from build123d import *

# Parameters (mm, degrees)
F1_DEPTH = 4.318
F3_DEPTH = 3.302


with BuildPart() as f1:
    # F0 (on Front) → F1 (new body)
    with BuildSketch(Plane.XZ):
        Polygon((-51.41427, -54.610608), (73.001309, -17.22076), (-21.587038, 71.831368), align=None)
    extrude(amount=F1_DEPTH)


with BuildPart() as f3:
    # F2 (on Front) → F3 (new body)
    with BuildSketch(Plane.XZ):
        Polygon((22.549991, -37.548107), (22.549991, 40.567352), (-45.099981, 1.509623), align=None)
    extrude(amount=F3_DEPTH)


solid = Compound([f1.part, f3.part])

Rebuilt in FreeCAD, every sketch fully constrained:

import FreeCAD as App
import Part
import Sketcher
Q = App.Units.Quantity

doc = App.newDocument("Part")
body = doc.addObject("PartDesign::Body", "Body")

sketch1 = body.newObject("Sketcher::SketchObject", "Sketch")
sketch1.AttachmentSupport = (doc.getObject("XZ_Plane"), [""])
sketch1.MapMode = "FlatFace"
sketch1.addGeometry([
    Part.LineSegment(App.Vector(-51, -55, 0), App.Vector(73, -17, 0)),
    Part.LineSegment(App.Vector(73, -17, 0), App.Vector(-22, 72, 0)),
    Part.LineSegment(App.Vector(-22, 72, 0), App.Vector(-51, -55, 0)),
], False)
sketch1.addConstraint([
    Sketcher.Constraint("Coincident", 0, 2, 1, 1),
    Sketcher.Constraint("Coincident", 1, 2, 2, 1),
    Sketcher.Constraint("Coincident", 2, 2, 0, 1),
    Sketcher.Constraint("Equal", 0, 1),
    Sketcher.Constraint("Equal", 1, 2),
    Sketcher.Constraint("Distance", 0, 129.912421),
    Sketcher.Constraint("DistanceX", -1, 1, 0, 2, 73.001309),
    Sketcher.Constraint("DistanceY", 0, 2, -1, 1, 17.22076),
    Sketcher.Constraint("DistanceX", 1, 2, -1, 1, 21.587038),
])
pad1 = body.newObject("PartDesign::Pad", "Pad")
pad1.Profile = sketch1
pad1.Length = Q("0.17 in")
body2 = doc.addObject("PartDesign::Body", "Body001")

sketch2 = body2.newObject("Sketcher::SketchObject", "Sketch001")
sketch2.AttachmentSupport = (doc.getObject("XZ_Plane001"), [""])
sketch2.MapMode = "FlatFace"
sketch2.addGeometry([
    Part.LineSegment(App.Vector(23, -38, 0), App.Vector(23, 41, 0)),
    Part.LineSegment(App.Vector(23, 41, 0), App.Vector(-45, 2, 0)),
    Part.LineSegment(App.Vector(-45, 2, 0), App.Vector(23, -38, 0)),
], False)
sketch2.addConstraint([
    Sketcher.Constraint("Coincident", 0, 2, 1, 1),
    Sketcher.Constraint("Coincident", 1, 2, 2, 1),
    Sketcher.Constraint("Coincident", 2, 2, 0, 1),
    Sketcher.Constraint("Vertical", 0),
    Sketcher.Constraint("Equal", 1, 2),
    Sketcher.Constraint("Angle", 1, Q("-150 deg")),
    Sketcher.Constraint("DistanceY", 0, 1, 0, 2, 78.115459),
    Sketcher.Constraint("DistanceX", -1, 1, 0, 2, 22.549991),
    Sketcher.Constraint("DistanceY", -1, 1, 0, 2, 40.567352),
])
pad2 = body2.newObject("PartDesign::Pad", "Pad001")
pad2.Profile = sketch2
pad2.Length = Q("0.13 in")

doc.recompute()
